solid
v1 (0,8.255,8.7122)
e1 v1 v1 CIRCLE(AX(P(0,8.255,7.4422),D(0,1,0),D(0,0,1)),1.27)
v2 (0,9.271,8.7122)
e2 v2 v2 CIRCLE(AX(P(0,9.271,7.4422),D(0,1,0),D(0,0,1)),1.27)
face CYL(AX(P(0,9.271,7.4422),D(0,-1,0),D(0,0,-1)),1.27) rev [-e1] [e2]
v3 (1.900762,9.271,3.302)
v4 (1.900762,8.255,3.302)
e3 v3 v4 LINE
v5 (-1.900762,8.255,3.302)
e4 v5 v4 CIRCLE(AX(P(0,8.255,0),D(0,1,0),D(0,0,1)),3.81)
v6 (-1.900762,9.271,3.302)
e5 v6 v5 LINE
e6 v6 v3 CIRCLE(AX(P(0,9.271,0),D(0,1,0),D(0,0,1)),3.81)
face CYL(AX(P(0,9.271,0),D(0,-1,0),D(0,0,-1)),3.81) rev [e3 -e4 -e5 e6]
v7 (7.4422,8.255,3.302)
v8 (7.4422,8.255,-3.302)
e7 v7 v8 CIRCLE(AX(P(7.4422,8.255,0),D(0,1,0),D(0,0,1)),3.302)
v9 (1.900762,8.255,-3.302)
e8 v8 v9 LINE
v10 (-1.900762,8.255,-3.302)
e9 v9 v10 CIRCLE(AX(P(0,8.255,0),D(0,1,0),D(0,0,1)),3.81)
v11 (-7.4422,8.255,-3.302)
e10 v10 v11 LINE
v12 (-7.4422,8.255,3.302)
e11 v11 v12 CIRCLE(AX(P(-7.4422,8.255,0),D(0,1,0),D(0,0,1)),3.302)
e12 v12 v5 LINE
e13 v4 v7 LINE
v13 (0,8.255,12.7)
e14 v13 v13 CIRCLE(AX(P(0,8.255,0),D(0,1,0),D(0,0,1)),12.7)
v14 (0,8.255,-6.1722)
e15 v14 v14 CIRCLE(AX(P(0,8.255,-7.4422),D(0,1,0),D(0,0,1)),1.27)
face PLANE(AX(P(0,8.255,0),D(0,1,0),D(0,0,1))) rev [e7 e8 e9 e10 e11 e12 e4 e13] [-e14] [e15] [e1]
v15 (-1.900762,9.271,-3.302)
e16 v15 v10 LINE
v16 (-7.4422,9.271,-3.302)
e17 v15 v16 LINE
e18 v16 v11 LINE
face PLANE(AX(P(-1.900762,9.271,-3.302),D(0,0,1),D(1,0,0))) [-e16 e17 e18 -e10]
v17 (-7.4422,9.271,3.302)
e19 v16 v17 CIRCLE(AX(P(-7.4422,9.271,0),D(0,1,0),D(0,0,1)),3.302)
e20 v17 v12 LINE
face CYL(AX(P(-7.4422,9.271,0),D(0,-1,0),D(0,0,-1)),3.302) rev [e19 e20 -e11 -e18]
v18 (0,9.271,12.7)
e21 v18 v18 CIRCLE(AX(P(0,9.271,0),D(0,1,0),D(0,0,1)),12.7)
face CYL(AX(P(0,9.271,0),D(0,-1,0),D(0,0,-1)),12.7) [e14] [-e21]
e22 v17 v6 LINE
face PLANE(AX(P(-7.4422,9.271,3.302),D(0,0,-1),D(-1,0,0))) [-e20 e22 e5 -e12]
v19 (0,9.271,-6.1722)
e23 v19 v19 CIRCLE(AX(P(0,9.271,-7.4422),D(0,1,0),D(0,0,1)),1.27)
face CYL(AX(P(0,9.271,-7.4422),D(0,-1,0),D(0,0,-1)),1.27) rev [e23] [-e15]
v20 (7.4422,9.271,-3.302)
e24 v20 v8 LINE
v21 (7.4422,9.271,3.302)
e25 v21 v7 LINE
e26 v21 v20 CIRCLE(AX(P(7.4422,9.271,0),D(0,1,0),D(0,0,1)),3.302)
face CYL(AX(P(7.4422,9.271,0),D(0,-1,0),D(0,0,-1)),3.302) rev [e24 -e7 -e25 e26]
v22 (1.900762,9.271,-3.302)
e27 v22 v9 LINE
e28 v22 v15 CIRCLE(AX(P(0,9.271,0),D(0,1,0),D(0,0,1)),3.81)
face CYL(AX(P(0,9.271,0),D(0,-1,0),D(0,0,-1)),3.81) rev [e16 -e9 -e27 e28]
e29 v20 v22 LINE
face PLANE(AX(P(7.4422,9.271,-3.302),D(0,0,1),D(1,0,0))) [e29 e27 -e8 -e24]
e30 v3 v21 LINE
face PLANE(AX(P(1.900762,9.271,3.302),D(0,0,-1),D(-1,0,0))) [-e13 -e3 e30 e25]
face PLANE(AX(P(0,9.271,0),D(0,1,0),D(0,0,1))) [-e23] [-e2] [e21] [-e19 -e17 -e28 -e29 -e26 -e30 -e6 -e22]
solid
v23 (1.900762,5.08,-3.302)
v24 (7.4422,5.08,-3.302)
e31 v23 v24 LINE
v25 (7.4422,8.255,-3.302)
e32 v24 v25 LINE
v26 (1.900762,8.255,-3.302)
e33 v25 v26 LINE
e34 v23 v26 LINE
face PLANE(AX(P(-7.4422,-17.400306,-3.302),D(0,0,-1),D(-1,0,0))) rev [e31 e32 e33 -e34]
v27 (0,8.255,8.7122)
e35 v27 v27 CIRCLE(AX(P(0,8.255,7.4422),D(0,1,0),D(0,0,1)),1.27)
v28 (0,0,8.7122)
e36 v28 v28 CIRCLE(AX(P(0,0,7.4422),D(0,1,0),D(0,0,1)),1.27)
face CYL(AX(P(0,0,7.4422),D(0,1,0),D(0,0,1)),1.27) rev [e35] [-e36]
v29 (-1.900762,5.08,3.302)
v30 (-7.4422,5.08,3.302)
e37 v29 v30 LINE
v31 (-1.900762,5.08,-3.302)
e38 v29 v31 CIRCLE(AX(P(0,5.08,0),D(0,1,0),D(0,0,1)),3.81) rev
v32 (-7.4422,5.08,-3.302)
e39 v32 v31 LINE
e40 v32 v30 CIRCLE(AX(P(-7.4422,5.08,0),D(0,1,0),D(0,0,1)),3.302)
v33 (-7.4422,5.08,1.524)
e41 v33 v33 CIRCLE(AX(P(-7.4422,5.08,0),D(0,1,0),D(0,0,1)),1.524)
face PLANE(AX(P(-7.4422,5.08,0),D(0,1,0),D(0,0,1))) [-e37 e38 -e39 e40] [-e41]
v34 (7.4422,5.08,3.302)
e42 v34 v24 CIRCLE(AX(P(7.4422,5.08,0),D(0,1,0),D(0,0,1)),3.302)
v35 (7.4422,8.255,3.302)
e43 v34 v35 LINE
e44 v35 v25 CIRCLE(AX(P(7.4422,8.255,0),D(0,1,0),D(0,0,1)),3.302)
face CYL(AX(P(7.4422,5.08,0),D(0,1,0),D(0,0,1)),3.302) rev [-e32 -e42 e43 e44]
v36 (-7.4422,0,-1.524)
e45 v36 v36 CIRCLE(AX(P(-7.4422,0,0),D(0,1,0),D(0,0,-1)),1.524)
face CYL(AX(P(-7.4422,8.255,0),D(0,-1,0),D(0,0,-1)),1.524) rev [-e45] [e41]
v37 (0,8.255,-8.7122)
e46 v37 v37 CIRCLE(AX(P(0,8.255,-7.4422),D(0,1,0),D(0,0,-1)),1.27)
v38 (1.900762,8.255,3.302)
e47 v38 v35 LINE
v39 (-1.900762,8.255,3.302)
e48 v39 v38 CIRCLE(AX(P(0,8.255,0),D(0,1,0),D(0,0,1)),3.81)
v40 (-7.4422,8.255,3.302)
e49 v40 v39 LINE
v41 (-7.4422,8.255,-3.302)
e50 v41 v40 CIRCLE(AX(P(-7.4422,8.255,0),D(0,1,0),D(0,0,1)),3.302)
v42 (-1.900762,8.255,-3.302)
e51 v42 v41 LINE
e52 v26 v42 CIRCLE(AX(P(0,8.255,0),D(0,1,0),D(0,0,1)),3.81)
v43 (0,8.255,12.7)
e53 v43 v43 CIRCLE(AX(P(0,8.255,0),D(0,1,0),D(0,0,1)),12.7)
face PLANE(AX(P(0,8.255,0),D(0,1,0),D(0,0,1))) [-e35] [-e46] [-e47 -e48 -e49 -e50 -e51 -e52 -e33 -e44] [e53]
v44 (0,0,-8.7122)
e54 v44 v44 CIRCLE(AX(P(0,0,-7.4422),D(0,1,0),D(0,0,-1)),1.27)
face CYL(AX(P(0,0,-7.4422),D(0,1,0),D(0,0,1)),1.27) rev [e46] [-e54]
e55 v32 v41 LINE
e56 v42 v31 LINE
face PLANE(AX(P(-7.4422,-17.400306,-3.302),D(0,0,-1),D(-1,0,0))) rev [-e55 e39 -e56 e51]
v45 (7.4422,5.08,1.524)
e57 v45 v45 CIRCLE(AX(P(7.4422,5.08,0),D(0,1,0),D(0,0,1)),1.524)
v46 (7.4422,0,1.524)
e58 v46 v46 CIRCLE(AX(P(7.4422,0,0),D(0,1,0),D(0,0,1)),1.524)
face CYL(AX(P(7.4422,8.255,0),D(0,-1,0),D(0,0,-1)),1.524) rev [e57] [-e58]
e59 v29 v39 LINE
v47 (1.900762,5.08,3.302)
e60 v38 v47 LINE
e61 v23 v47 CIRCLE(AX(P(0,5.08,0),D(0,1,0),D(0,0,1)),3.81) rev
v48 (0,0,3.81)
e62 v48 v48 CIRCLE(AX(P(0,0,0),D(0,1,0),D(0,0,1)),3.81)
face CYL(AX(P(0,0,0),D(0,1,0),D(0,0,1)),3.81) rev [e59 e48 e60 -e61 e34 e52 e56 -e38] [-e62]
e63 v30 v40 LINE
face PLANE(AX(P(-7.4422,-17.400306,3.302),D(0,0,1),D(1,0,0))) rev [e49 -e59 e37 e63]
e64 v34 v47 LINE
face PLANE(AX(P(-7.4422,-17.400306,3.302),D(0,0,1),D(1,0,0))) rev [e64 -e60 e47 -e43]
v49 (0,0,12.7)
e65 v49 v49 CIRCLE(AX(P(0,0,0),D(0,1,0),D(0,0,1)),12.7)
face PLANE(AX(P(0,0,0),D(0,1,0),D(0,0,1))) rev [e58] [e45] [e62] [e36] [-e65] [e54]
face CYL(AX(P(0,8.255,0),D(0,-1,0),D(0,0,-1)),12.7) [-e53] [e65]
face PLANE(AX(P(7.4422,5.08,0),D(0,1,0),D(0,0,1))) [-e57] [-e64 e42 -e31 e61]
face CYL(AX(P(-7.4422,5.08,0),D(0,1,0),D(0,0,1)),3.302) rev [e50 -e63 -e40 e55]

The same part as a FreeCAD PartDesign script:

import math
import FreeCAD as App
import Part
import Sketcher
from FreeCAD import Vector
Q = App.Units.Quantity

doc = App.newDocument("Part")
body = doc.addObject("PartDesign::Body", "Body")

sketch1 = doc.addObject("Sketcher::SketchObject", "Sketch")
body.addObject(sketch1)
sketch1.AttachmentSupport = (doc.XZ_Plane, [""])
sketch1.MapMode = "FlatFace"
sketch1.addGeometry([
    Part.Circle(Vector(0, 0, 0), Vector(0, 0, 1), 12.7),
    Part.Circle(Vector(-7.4422, 0, 0), Vector(0, 0, 1), 1.524),
    Part.Circle(Vector(7.4422, 0, 0), Vector(0, 0, 1), 1.524),
], False)
sketch1.addConstraint([
    Sketcher.Constraint("Coincident", 0, 3, -1, 1),
    Sketcher.Constraint("Equal", 1, 2),
    Sketcher.Constraint("Symmetric", 1, 3, 2, 3, -1, 1),
    Sketcher.Constraint("PointOnObject", 1, 3, -1),
    Sketcher.Constraint("Diameter", 0, Q("1 in")),
    Sketcher.Constraint("Diameter", 1, Q("0.12 in")),
    Sketcher.Constraint("DistanceX", 1, 3, -1, 1, Q("0.293 in")),
])
pad1 = doc.addObject("PartDesign::Pad", "Pad")
body.addObject(pad1)
pad1.Profile = sketch1
pad1.Length = Q("0.325 in")
pad1.Reversed = True

sketch2 = doc.addObject("Sketcher::SketchObject", "Sketch001")
body.addObject(sketch2)
sketch2.AttachmentSupport = (doc.XZ_Plane, [""])
sketch2.MapMode = "FlatFace"
sketch2.AttachmentOffset = App.Placement(Vector(0, 0, -0.325 * 25.4), App.Rotation())
sketch2.addGeometry([
    Part.Circle(Vector(-7.4422, 0, 0), Vector(0, 0, 1), 3.302),
    Part.Circle(Vector(7.4422, 0, 0), Vector(0, 0, 1), 3.302),
], False)
sketch2.addConstraint([
    Sketcher.Constraint("Equal", 0, 1),
    Sketcher.Constraint("Symmetric", 0, 3, 1, 3, -1, 1),
    Sketcher.Constraint("PointOnObject", 0, 3, -1),
    Sketcher.Constraint("Diameter", 0, Q("0.26 in")),
    Sketcher.Constraint("DistanceX", 0, 3, -1, 1, Q("0.293 in")),
])
pocket1 = doc.addObject("PartDesign::Pocket", "Pocket")
body.addObject(pocket1)
pocket1.Profile = sketch2
pocket1.Length = Q("0.125 in")
pocket1.Reversed = True

sketch3 = doc.addObject("Sketcher::SketchObject", "Sketch002")
body.addObject(sketch3)
sketch3.AttachmentSupport = (doc.XZ_Plane, [""])
sketch3.MapMode = "FlatFace"
sketch3.AttachmentOffset = App.Placement(Vector(0, 0, -0.325 * 25.4), App.Rotation())
sketch3.addGeometry([
    Part.Circle(Vector(0, 7.4422, 0), Vector(0, 0, 1), 1.27),
    Part.Circle(Vector(0, -7.4422, 0), Vector(0, 0, 1), 1.27),
], False)
sketch3.addConstraint([
    Sketcher.Constraint("Equal", 0, 1),
    Sketcher.Constraint("Symmetric", 0, 3, 1, 3, -1, 1),
    Sketcher.Constraint("PointOnObject", 0, 3, -2),
    Sketcher.Constraint("Diameter", 0, Q("0.1 in")),
    Sketcher.Constraint("DistanceY", -1, 1, 0, 3, Q("0.293 in")),
])
pocket2 = doc.addObject("PartDesign::Pocket", "Pocket001")
body.addObject(pocket2)
pocket2.Profile = sketch3
pocket2.Type = "ThroughAll"
pocket2.Reversed = True

sketch4 = doc.addObject("Sketcher::SketchObject", "Sketch003")
body.addObject(sketch4)
sketch4.AttachmentSupport = (doc.XZ_Plane, [""])
sketch4.MapMode = "FlatFace"
sketch4.AttachmentOffset = App.Placement(Vector(0, 0, -0.325 * 25.4), App.Rotation())
sketch4.addGeometry(Part.Circle(Vector(0, 0, 0), Vector(0, 0, 1), 3.81), False)
sketch4.addConstraint([
    Sketcher.Constraint("Coincident", 0, 3, -1, 1),
    Sketcher.Constraint("Diameter", 0, Q("0.3 in")),
])
pocket3 = doc.addObject("PartDesign::Pocket", "Pocket002")
body.addObject(pocket3)
pocket3.Profile = sketch4
pocket3.Type = "ThroughAll"
pocket3.Reversed = True

sketch5 = doc.addObject("Sketcher::SketchObject", "Sketch004")
body.addObject(sketch5)
sketch5.AttachmentSupport = (doc.XZ_Plane, [""])
sketch5.MapMode = "FlatFace"
sketch5.AttachmentOffset = App.Placement(Vector(0, 0, -0.325 * 25.4), App.Rotation())
sketch5.addGeometry([
    Part.LineSegment(Vector(7.4422, -3.302, 0), Vector(-7.4422, -3.302, 0)),
    Part.ArcOfCircle(Part.Circle(Vector(-7.4422, 0, 0), Vector(0, 0, 1), 3.302), math.radians(90), math.radians(270)),
    Part.LineSegment(Vector(-7.4422, 3.302, 0), Vector(7.4422, 3.302, 0)),
    Part.ArcOfCircle(Part.Circle(Vector(7.4422, 0, 0), Vector(0, 0, 1), 3.302), math.radians(-90), math.radians(90)),
], False)
sketch5.addConstraint([
    Sketcher.Constraint("Tangent", 0, 2, 1, 2),
    Sketcher.Constraint("Tangent", 1, 1, 2, 1),
    Sketcher.Constraint("Tangent", 2, 2, 3, 2),
    Sketcher.Constraint("Tangent", 3, 1, 0, 1),
    Sketcher.Constraint("Horizontal", 0),
    Sketcher.Constraint("Horizontal", 2),
    Sketcher.Constraint("Symmetric", 1, 3, 3, 3, -1, 1),
    Sketcher.Constraint("Radius", 1, Q("0.13 in")),
    Sketcher.Constraint("DistanceX", 0, 2, 0, 1, Q("0.586 in")),
])
pocket4 = doc.addObject("PartDesign::Pocket", "Pocket003")
body.addObject(pocket4)
pocket4.Profile = sketch5
pocket4.Length = Q("0.125 in")
pocket4.Reversed = True
body2 = doc.addObject("PartDesign::Body", "Body001")

sketch6 = doc.addObject("Sketcher::SketchObject", "Sketch005")
body2.addObject(sketch6)
sketch6.AttachmentSupport = (doc.getObject("XZ_Plane001"), [""])
sketch6.MapMode = "FlatFace"
sketch6.AttachmentOffset = App.Placement(Vector(0, 0, -0.325 * 25.4), App.Rotation())
sketch6.addGeometry([
    Part.Circle(Vector(0, 0, 0), Vector(0, 0, 1), 12.7),
    Part.Circle(Vector(0, 7.4422, 0), Vector(0, 0, 1), 1.27),
    Part.LineSegment(Vector(-7.4422, -3.302, 0), Vector(-1.900762, -3.302, 0)),
    Part.ArcOfCircle(Part.Circle(Vector(0, 0, 0), Vector(0, 0, 1), 3.81), math.radians(-119.926435), math.radians(-60.073565)),
    Part.LineSegment(Vector(1.900762, -3.302, 0), Vector(7.4422, -3.302, 0)),
    Part.ArcOfCircle(Part.Circle(Vector(7.4422, 0, 0), Vector(0, 0, 1), 3.302), math.radians(-90), math.radians(90)),
    Part.LineSegment(Vector(7.4422, 3.302, 0), Vector(1.900762, 3.302, 0)),
    Part.ArcOfCircle(Part.Circle(Vector(0, 0, 0), Vector(0, 0, 1), 3.81), math.radians(60.073565), math.radians(119.926435)),
    Part.LineSegment(Vector(-1.900762, 3.302, 0), Vector(-7.4422, 3.302, 0)),
    Part.ArcOfCircle(Part.Circle(Vector(-7.4422, 0, 0), Vector(0, 0, 1), 3.302), math.radians(90), math.radians(270)),
    Part.Circle(Vector(0, -7.4422, 0), Vector(0, 0, 1), 1.27),
], False)
sketch6.addConstraint([
    Sketcher.Constraint("Coincident", 2, 2, 3, 1),
    Sketcher.Constraint("Coincident", 3, 2, 4, 1),
    Sketcher.Constraint("Tangent", 4, 2, 5, 1),
    Sketcher.Constraint("Tangent", 5, 2, 6, 1),
    Sketcher.Constraint("Coincident", 6, 2, 7, 1),
    Sketcher.Constraint("Coincident", 7, 2, 8, 1),
    Sketcher.Constraint("Tangent", 8, 2, 9, 1),
    Sketcher.Constraint("Tangent", 9, 2, 2, 1),
    Sketcher.Constraint("Horizontal", 2),
    Sketcher.Constraint("Horizontal", 4),
    Sketcher.Constraint("Horizontal", 6),
    Sketcher.Constraint("Horizontal", 8),
    Sketcher.Constraint("Coincident", 0, 3, -1, 1),
    Sketcher.Constraint("Coincident", 3, 3, -1, 1),
    Sketcher.Constraint("Coincident", 7, 3, -1, 1),
    Sketcher.Constraint("Equal", 3, 7),
    Sketcher.Constraint("Equal", 5, 9),
    Sketcher.Constraint("Equal", 1, 10),
    Sketcher.Constraint("Symmetric", 5, 3, 9, 3, -1, 1),
    Sketcher.Constraint("Symmetric", 1, 3, 10, 3, -1, 1),
    Sketcher.Constraint("PointOnObject", 1, 3, -2),
    Sketcher.Constraint("PointOnObject", 5, 3, -1),
    Sketcher.Constraint("Diameter", 0, Q("1 in")),
    Sketcher.Constraint("Diameter", 1, Q("0.1 in")),
    Sketcher.Constraint("Radius", 3, Q("0.15 in")),
    Sketcher.Constraint("Radius", 5, Q("0.13 in")),
    Sketcher.Constraint("DistanceY", -1, 1, 1, 3, Q("0.293 in")),
    Sketcher.Constraint("DistanceX", -1, 1, 5, 3, Q("0.293 in")),
])
pad2 = doc.addObject("PartDesign::Pad", "Pad001")
body2.addObject(pad2)
pad2.Profile = sketch6
pad2.Length = Q("0.04 in")
pad2.Reversed = True

doc.recompute()
